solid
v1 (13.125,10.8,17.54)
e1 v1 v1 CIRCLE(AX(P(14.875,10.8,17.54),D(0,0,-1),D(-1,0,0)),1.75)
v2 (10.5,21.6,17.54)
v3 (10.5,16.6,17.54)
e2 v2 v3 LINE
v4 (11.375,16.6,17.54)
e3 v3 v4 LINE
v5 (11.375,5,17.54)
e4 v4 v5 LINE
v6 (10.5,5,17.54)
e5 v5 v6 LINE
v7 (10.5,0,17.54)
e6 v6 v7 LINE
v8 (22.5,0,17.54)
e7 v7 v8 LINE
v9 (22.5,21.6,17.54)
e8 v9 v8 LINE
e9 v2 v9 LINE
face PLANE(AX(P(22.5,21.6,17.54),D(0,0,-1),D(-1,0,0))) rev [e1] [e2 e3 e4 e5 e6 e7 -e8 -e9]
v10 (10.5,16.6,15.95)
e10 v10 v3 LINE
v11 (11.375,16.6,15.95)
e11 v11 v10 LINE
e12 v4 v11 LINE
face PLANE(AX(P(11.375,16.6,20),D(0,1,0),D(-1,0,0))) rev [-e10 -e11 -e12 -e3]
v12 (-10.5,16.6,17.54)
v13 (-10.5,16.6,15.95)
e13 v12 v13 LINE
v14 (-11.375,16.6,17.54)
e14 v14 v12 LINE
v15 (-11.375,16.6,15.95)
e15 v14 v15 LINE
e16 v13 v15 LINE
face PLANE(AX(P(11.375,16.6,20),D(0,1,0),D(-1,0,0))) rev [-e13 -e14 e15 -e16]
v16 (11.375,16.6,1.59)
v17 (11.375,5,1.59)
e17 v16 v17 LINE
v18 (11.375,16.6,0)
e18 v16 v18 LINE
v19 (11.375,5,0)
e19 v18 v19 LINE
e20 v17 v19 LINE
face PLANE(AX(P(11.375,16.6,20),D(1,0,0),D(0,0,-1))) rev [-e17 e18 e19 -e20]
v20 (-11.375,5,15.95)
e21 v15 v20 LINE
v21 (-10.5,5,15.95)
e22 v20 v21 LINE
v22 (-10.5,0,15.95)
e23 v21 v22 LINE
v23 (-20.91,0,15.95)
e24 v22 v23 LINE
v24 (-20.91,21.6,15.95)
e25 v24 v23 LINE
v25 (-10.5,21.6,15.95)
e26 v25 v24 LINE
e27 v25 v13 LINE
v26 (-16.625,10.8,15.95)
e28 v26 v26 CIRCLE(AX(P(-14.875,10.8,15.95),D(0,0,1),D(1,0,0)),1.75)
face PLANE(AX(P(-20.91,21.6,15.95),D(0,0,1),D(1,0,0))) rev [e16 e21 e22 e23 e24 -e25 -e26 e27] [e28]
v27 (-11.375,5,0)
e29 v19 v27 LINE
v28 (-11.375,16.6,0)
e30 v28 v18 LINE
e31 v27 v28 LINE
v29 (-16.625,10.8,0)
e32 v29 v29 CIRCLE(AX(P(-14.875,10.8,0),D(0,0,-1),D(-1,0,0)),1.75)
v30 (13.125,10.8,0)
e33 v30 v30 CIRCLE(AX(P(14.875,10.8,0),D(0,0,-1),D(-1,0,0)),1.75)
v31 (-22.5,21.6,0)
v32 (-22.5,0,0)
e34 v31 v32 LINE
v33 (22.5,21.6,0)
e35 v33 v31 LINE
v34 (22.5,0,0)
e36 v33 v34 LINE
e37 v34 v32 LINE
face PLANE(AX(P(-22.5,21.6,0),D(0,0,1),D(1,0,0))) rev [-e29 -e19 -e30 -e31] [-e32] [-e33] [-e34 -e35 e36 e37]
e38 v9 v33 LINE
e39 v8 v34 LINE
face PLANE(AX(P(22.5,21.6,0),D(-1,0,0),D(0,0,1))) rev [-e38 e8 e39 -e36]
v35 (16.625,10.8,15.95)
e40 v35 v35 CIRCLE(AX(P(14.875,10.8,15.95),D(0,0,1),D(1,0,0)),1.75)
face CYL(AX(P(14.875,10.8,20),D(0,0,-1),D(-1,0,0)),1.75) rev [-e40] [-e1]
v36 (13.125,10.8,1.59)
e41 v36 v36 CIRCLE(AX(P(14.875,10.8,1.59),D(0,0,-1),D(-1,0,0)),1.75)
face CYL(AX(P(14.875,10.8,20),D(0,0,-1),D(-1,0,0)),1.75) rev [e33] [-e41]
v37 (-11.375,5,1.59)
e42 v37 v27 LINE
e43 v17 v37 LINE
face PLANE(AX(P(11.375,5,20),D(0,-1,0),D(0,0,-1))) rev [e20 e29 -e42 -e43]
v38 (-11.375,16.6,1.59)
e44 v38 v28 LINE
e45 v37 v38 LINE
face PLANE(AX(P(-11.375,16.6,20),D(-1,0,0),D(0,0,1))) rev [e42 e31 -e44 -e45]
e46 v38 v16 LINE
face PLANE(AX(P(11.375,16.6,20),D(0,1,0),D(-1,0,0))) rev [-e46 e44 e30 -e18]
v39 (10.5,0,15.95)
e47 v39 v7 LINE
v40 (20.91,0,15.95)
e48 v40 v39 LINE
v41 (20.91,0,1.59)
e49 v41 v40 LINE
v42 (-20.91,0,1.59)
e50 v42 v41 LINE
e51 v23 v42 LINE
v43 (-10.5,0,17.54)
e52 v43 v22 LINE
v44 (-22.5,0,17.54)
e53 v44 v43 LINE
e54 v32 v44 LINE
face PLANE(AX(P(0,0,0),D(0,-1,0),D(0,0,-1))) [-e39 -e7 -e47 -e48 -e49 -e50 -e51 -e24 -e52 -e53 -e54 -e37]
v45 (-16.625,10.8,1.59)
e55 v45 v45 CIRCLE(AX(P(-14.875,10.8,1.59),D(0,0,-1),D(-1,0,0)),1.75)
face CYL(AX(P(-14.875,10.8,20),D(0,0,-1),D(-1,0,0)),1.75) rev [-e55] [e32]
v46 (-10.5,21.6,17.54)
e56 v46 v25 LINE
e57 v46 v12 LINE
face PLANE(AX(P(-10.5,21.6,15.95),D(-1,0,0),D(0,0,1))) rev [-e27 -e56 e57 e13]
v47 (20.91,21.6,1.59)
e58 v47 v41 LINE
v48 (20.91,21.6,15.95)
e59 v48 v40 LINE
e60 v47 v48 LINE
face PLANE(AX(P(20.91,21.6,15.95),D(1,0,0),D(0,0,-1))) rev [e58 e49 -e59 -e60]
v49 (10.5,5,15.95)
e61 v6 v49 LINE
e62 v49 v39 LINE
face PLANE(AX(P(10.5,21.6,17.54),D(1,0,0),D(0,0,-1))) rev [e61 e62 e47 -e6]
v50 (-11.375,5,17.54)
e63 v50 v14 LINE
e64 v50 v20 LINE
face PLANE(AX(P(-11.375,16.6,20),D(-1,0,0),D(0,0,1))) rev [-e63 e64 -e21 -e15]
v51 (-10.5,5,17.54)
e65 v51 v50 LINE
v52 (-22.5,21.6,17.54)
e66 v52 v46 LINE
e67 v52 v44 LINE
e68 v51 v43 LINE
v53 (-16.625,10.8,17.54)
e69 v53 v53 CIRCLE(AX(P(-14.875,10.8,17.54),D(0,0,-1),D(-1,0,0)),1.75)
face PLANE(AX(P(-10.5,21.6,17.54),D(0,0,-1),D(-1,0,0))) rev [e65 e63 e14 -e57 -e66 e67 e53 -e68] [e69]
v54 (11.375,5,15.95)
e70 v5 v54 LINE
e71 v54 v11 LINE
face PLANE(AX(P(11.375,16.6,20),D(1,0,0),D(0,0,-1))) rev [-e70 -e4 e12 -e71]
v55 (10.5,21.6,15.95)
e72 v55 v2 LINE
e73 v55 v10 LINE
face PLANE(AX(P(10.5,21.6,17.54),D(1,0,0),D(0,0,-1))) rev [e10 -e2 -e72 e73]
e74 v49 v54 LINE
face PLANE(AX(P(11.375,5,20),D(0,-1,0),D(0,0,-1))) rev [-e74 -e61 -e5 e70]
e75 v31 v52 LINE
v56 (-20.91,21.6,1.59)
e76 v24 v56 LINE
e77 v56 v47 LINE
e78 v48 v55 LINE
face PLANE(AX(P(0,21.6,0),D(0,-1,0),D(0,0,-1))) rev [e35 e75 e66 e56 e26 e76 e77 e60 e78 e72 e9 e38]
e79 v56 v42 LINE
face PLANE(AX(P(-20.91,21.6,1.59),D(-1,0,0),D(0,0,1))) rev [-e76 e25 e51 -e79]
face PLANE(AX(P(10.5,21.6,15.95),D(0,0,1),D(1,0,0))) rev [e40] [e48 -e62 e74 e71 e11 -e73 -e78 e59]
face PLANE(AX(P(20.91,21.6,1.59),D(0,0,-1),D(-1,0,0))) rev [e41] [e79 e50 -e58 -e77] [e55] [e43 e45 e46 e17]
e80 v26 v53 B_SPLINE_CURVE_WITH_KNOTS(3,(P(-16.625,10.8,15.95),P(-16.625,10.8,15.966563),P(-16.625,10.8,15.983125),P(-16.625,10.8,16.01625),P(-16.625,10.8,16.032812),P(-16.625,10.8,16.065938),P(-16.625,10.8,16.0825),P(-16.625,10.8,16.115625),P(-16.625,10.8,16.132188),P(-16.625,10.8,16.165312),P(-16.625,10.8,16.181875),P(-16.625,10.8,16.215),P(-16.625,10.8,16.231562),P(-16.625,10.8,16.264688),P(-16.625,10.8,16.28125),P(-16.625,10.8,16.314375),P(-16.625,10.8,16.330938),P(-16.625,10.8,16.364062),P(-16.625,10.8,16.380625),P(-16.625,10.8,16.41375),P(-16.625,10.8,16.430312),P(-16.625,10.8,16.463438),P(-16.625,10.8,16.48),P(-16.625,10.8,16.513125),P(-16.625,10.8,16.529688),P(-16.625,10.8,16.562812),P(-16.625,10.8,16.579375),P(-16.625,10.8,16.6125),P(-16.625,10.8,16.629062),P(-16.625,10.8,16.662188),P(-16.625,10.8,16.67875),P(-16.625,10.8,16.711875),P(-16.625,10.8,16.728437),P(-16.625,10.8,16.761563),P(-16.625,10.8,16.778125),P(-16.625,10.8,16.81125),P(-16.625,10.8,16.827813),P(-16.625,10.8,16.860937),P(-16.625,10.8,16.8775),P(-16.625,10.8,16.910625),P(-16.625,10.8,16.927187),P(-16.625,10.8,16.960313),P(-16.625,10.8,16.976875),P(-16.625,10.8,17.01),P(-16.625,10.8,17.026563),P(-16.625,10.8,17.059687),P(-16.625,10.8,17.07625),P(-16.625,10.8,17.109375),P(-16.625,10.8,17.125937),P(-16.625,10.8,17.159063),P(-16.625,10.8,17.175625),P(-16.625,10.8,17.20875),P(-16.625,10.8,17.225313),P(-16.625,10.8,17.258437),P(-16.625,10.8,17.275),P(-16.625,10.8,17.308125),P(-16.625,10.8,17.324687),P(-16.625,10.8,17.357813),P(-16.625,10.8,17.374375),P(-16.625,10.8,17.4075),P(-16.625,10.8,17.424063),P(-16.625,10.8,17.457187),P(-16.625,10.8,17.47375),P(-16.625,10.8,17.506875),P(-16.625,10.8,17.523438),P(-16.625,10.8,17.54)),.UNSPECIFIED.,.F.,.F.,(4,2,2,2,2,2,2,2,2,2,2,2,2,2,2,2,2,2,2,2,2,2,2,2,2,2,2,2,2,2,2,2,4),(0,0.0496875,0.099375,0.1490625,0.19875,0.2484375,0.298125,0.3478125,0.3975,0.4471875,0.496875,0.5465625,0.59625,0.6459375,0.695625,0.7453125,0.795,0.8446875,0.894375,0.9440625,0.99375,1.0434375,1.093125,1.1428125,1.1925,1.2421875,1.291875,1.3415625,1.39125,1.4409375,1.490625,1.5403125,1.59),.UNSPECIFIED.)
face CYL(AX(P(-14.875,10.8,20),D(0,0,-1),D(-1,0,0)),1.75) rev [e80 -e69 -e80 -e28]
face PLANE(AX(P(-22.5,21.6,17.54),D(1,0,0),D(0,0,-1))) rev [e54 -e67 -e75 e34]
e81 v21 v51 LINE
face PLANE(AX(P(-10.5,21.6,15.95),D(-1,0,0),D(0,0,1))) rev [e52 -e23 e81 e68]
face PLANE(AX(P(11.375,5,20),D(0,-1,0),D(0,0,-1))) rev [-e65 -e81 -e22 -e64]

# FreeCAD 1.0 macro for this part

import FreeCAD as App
import Part
import Sketcher
from FreeCAD import Vector

doc = App.newDocument("Part")
body = doc.addObject("PartDesign::Body", "Body")

sketch1 = body.newObject("Sketcher::SketchObject", "Sketch")
sketch1.AttachmentSupport = (doc.getObject("XZ_Plane"), [""])
sketch1.MapMode = "FlatFace"
sketch1.addGeometry(Part.LineSegment(Vector(22.5, 0, 0), Vector(-22.5, 0, 0)), False)
sketch1.addGeometry(Part.LineSegment(Vector(-22.5, 0, 0), Vector(-22.5, 17.5, 0)), False)
sketch1.addGeometry(Part.LineSegment(Vector(-22.5, 17.5, 0), Vector(-10.5, 17.5, 0)), False)
sketch1.addGeometry(Part.LineSegment(Vector(-10.5, 17.5, 0), Vector(-10.5, 15.9, 0)), False)
sketch1.addGeometry(Part.LineSegment(Vector(-10.5, 15.9, 0), Vector(-20.9, 15.9, 0)), False)
sketch1.addGeometry(Part.LineSegment(Vector(-20.9, 15.9, 0), Vector(-20.9, 1.6, 0)), False)
sketch1.addGeometry(Part.LineSegment(Vector(-20.9, 1.6, 0), Vector(20.9, 1.6, 0)), False)
sketch1.addGeometry(Part.LineSegment(Vector(20.9, 1.6, 0), Vector(20.9, 15.9, 0)), False)
sketch1.addGeometry(Part.LineSegment(Vector(20.9, 15.9, 0), Vector(10.5, 15.9, 0)), False)
sketch1.addGeometry(Part.LineSegment(Vector(10.5, 15.9, 0), Vector(10.5, 17.5, 0)), False)
sketch1.addGeometry(Part.LineSegment(Vector(10.5, 17.5, 0), Vector(22.5, 17.5, 0)), False)
sketch1.addGeometry(Part.LineSegment(Vector(22.5, 17.5, 0), Vector(22.5, 0, 0)), False)
sketch1.addConstraint(Sketcher.Constraint("Coincident", 0, 2, 1, 1))
sketch1.addConstraint(Sketcher.Constraint("Coincident", 1, 2, 2, 1))
sketch1.addConstraint(Sketcher.Constraint("Coincident", 2, 2, 3, 1))
sketch1.addConstraint(Sketcher.Constraint("Coincident", 3, 2, 4, 1))
sketch1.addConstraint(Sketcher.Constraint("Coincident", 4, 2, 5, 1))
sketch1.addConstraint(Sketcher.Constraint("Coincident", 5, 2, 6, 1))
sketch1.addConstraint(Sketcher.Constraint("Coincident", 6, 2, 7, 1))
sketch1.addConstraint(Sketcher.Constraint("Coincident", 7, 2, 8, 1))
sketch1.addConstraint(Sketcher.Constraint("Coincident", 8, 2, 9, 1))
sketch1.addConstraint(Sketcher.Constraint("Coincident", 9, 2, 10, 1))
sketch1.addConstraint(Sketcher.Constraint("Coincident", 10, 2, 11, 1))
sketch1.addConstraint(Sketcher.Constraint("Coincident", 11, 2, 0, 1))
sketch1.addConstraint(Sketcher.Constraint("Horizontal", 0))
sketch1.addConstraint(Sketcher.Constraint("Vertical", 1))
sketch1.addConstraint(Sketcher.Constraint("Horizontal", 2))
sketch1.addConstraint(Sketcher.Constraint("Vertical", 3))
sketch1.addConstraint(Sketcher.Constraint("Horizontal", 4))
sketch1.addConstraint(Sketcher.Constraint("Vertical", 5))
sketch1.addConstraint(Sketcher.Constraint("Horizontal", 6))
sketch1.addConstraint(Sketcher.Constraint("Vertical", 7))
sketch1.addConstraint(Sketcher.Constraint("Horizontal", 8))
sketch1.addConstraint(Sketcher.Constraint("Vertical", 9))
sketch1.addConstraint(Sketcher.Constraint("Horizontal", 10))
sketch1.addConstraint(Sketcher.Constraint("Vertical", 11))
sketch1.addConstraint(Sketcher.Constraint("Symmetric", 0, 2, 11, 2, -1, 1))
sketch1.addConstraint(Sketcher.Constraint("Symmetric", 4, 2, 7, 2, -2))
sketch1.addConstraint(Sketcher.Constraint("Symmetric", 2, 2, 9, 2, -2))
sketch1.addConstraint(Sketcher.Constraint("DistanceX", 0, 2, 0, 1, 45.0))
sketch1.addConstraint(Sketcher.Constraint("DistanceX", 2, 1, 2, 2, 12.0))
sketch1.addConstraint(Sketcher.Constraint("DistanceX", 4, 2, 4, 1, 10.41))
sketch1.addConstraint(Sketcher.Constraint("DistanceY", 1, 1, 1, 2, 17.54))
sketch1.addConstraint(Sketcher.Constraint("DistanceY", 3, 2, 3, 1, 1.59))
sketch1.addConstraint(Sketcher.Constraint("DistanceY", 5, 2, 5, 1, 14.36))
pad1 = body.newObject("PartDesign::Pad", "Pad")
pad1.Profile = sketch1
pad1.Length = 21.6
pad1.Reversed = True

sketch2 = body.newObject("Sketcher::SketchObject", "Sketch001")
sketch2.AttachmentSupport = (doc.getObject("XY_Plane"), [""])
sketch2.MapMode = "FlatFace"
sketch2.addGeometry(Part.Circle(Vector(14.9, 10.8, 0), Vector(0, 0, 1), 1.8), False)
sketch2.addGeometry(Part.Circle(Vector(-14.9, 10.8, 0), Vector(0, 0, 1), 1.8), False)
sketch2.addGeometry(Part.LineSegment(Vector(11.4, 16.6, 0), Vector(11.4, 5, 0)), False)
sketch2.addGeometry(Part.LineSegment(Vector(11.4, 5, 0), Vector(-11.4, 5, 0)), False)
sketch2.addGeometry(Part.LineSegment(Vector(-11.4, 5, 0), Vector(-11.4, 16.6, 0)), False)
sketch2.addGeometry(Part.LineSegment(Vector(-11.4, 16.6, 0), Vector(11.4, 16.6, 0)), False)
sketch2.addConstraint(Sketcher.Constraint("Coincident", 2, 2, 3, 1))
sketch2.addConstraint(Sketcher.Constraint("Coincident", 3, 2, 4, 1))
sketch2.addConstraint(Sketcher.Constraint("Coincident", 4, 2, 5, 1))
sketch2.addConstraint(Sketcher.Constraint("Coincident", 5, 2, 2, 1))
sketch2.addConstraint(Sketcher.Constraint("Vertical", 2))
sketch2.addConstraint(Sketcher.Constraint("Horizontal", 3))
sketch2.addConstraint(Sketcher.Constraint("Vertical", 4))
sketch2.addConstraint(Sketcher.Constraint("Horizontal", 5))
sketch2.addConstraint(Sketcher.Constraint("Equal", 0, 1))
sketch2.addConstraint(Sketcher.Constraint("Symmetric", 0, 3, 1, 3, -2))
sketch2.addConstraint(Sketcher.Constraint("Diameter", 0, 3.5))
sketch2.addConstraint(Sketcher.Constraint("DistanceY", 2, 2, 2, 1, 11.6))
sketch2.addConstraint(Sketcher.Constraint("DistanceY", -1, 1, 2, 2, 5.0))
sketch2.addConstraint(Sketcher.Constraint("DistanceX", 3, 2, 3, 1, 22.75))
sketch2.addConstraint(Sketcher.Constraint("DistanceY", -1, 1, 0, 3, 10.8))
sketch2.addConstraint(Sketcher.Constraint("DistanceX", 2, 2, 0, 3, 3.5))
sketch2.addConstraint(Sketcher.Constraint("DistanceX", 1, 3, 3, 2, 3.5))
pocket1 = body.newObject("PartDesign::Pocket", "Pocket")
pocket1.Profile = sketch2
pocket1.Length = 20
pocket1.Reversed = True

doc.recompute()
